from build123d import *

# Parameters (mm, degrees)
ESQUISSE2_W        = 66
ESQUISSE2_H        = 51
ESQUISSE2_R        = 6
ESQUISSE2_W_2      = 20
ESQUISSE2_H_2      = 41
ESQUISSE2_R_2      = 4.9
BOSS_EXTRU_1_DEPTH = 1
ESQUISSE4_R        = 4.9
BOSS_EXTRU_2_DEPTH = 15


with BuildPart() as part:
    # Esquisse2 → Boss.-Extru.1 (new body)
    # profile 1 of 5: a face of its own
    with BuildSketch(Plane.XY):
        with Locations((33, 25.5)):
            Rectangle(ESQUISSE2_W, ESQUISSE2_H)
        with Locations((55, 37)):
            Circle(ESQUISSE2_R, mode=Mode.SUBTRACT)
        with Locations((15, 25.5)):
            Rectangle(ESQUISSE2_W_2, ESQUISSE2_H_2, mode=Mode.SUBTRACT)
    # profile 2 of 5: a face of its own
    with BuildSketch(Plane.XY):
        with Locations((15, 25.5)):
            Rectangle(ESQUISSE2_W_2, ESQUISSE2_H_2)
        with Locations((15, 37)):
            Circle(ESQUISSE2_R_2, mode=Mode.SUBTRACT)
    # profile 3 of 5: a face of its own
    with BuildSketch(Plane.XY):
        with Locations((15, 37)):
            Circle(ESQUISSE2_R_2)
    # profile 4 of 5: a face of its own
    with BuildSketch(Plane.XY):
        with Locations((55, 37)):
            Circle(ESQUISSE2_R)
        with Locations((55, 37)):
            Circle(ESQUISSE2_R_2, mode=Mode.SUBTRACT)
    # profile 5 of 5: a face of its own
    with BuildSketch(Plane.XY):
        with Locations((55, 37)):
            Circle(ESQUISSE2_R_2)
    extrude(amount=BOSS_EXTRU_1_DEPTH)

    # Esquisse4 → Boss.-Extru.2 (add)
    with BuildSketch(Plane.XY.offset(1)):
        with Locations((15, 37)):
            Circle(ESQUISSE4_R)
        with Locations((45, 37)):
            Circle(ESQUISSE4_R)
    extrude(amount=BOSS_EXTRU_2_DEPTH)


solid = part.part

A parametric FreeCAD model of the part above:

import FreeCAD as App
import Part
import Sketcher

V = App.Vector
Q = App.Units.Quantity

doc = App.newDocument("Part")
body = doc.addObject("PartDesign::Body", "Body")

# Sketch on XY plane
sketch1 = body.newObject("Sketcher::SketchObject", "Sketch")
sketch1.AttachmentSupport = (doc.getObject("XY_Plane"), [""])
sketch1.MapMode = "FlatFace"
sketch1.addGeometry(Part.LineSegment(V(0, 51, 0), V(0, 0, 0)), False)
sketch1.addGeometry(Part.LineSegment(V(0, 0, 0), V(66, 0, 0)), False)
sketch1.addGeometry(Part.LineSegment(V(66, 0, 0), V(66, 51, 0)), False)
sketch1.addGeometry(Part.LineSegment(V(66, 51, 0), V(0, 51, 0)), False)
sketch1.addConstraint(Sketcher.Constraint("Coincident", 0, 2, 1, 1))
sketch1.addConstraint(Sketcher.Constraint("Coincident", 1, 2, 2, 1))
sketch1.addConstraint(Sketcher.Constraint("Coincident", 2, 2, 3, 1))
sketch1.addConstraint(Sketcher.Constraint("Coincident", 3, 2, 0, 1))
sketch1.addConstraint(Sketcher.Constraint("Vertical", 0))
sketch1.addConstraint(Sketcher.Constraint("Horizontal", 1))
sketch1.addConstraint(Sketcher.Constraint("Vertical", 2))
sketch1.addConstraint(Sketcher.Constraint("Horizontal", 3))
sketch1.addConstraint(Sketcher.Constraint("Coincident", 0, 2, -1, 1))
sketch1.addConstraint(Sketcher.Constraint("DistanceX", 1, 1, 1, 2, Q("66 mm")))
sketch1.addConstraint(Sketcher.Constraint("DistanceY", 0, 2, 0, 1, Q("51 mm")))
pad1 = body.newObject("PartDesign::Pad", "Pad")
pad1.Profile = sketch1
pad1.Length = 1

# Sketch on XY plane
sketch2 = body.newObject("Sketcher::SketchObject", "Sketch001")
sketch2.AttachmentSupport = (doc.getObject("XY_Plane"), [""])
sketch2.MapMode = "FlatFace"
sketch2.AttachmentOffset = App.Placement(V(0, 0, 1), App.Rotation())
sketch2.addGeometry(Part.Circle(V(15, 37, 0), V(0, 0, 1), 4.9), False)
sketch2.addGeometry(Part.Circle(V(45, 37, 0), V(0, 0, 1), 4.9), False)
sketch2.addConstraint(Sketcher.Constraint("Equal", 0, 1))
sketch2.addConstraint(Sketcher.Constraint("Horizontal", 0, 3, 1, 3))
sketch2.addConstraint(Sketcher.Constraint("Diameter", 0, Q("9.8 mm")))
sketch2.addConstraint(Sketcher.Constraint("DistanceX", -1, 1, 0, 3, Q("15 mm")))
sketch2.addConstraint(Sketcher.Constraint("DistanceY", -1, 1, 0, 3, Q("37 mm")))
sketch2.addConstraint(Sketcher.Constraint("DistanceX", -1, 1, 1, 3, Q("45 mm")))
pad2 = body.newObject("PartDesign::Pad", "Pad001")
pad2.Profile = sketch2
pad2.Length = 15

doc.recompute()
